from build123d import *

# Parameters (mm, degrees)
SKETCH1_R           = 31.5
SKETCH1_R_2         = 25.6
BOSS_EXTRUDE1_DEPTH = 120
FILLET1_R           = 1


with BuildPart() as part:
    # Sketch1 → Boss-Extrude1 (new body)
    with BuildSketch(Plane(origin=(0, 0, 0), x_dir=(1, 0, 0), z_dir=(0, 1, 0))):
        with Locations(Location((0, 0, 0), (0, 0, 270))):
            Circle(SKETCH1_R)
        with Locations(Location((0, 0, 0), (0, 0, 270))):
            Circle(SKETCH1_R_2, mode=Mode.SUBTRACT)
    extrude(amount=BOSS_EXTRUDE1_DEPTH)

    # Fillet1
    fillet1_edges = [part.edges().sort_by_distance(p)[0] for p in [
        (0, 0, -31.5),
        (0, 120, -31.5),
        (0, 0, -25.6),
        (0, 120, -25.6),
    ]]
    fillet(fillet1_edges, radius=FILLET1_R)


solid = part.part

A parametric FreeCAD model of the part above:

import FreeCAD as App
import Part
import Sketcher

V = App.Vector
Q = App.Units.Quantity


def edges_at(feature, points):
    """Names of the edges that pass closest to the given points."""
    edges = feature.Shape.Edges
    near = lambda p: min(range(len(edges)), key=lambda i: edges[i].distToShape(Part.Vertex(*p))[0])
    return sorted({f"Edge{near(p) + 1}" for p in points})

doc = App.newDocument("Part")
body = doc.addObject("PartDesign::Body", "Body")

# Sketch on XZ plane
sketch1 = body.newObject("Sketcher::SketchObject", "Sketch")
sketch1.AttachmentSupport = (doc.getObject("XZ_Plane"), [""])
sketch1.MapMode = "FlatFace"
sketch1.addGeometry([
    Part.Circle(V(0, 0, 0), V(0, 0, 1), 31.5),
    Part.Circle(V(0, 0, 0), V(0, 0, 1), 25.6),
], False)
sketch1.addConstraint([
    Sketcher.Constraint("Coincident", 0, 3, -1, 1),
    Sketcher.Constraint("Coincident", 1, 3, -1, 1),
    Sketcher.Constraint("Diameter", 0, Q("63 mm")),
    Sketcher.Constraint("Diameter", 1, Q("51.2 mm")),
])
pad1 = body.newObject("PartDesign::Pad", "Pad")
pad1.Profile = sketch1
pad1.Length = 120
pad1.Reversed = True
doc.recompute()

fillet = body.newObject("PartDesign::Fillet", "Fillet")
fillet.Base = (pad1, edges_at(pad1, [
    (0, 0, -31.5),
    (0, 120, -31.5),
    (0, 0, -25.6),
    (0, 120, -25.6),
]))
fillet.Radius = 1

doc.recompute()
